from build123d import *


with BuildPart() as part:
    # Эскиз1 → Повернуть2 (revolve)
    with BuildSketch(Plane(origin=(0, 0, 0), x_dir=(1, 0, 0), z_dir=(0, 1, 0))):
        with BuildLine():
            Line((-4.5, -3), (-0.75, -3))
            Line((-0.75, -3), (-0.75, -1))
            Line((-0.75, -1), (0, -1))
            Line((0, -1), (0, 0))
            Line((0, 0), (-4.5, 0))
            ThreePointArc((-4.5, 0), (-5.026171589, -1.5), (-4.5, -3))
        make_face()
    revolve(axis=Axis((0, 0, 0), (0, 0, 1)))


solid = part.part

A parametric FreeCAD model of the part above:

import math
import FreeCAD as App
import Part
import Sketcher

V = App.Vector

doc = App.newDocument("Part")
params = doc.addObject("Spreadsheet::Sheet", "Params")
for row, (alias, value) in enumerate([
    ("sketch1_height", "2 mm"),
    ("sketch1_height2", "1 mm"),
    ("sketch1_width", "4.5 mm"),
    ("sketch1_width2", "3.75 mm"),
    ("revolution_angle", "360 deg"),
], start=1):
    params.set(f"A{row}", alias)
    params.set(f"B{row}", "=" + value)
    params.setAlias(f"B{row}", alias)

body = doc.addObject("PartDesign::Body", "Body")

sketch1 = doc.addObject("Sketcher::SketchObject", "Sketch")
body.addObject(sketch1)
sketch1.AttachmentSupport = (doc.XZ_Plane, [""])
sketch1.MapMode = "FlatFace"
sketch1.addGeometry([
    Part.LineSegment(V(-4.5, 3, 0), V(-0.8, 3, 0)),
    Part.LineSegment(V(-0.8, 3, 0), V(-0.8, 1, 0)),
    Part.LineSegment(V(-0.8, 1, 0), V(0, 1, 0)),
    Part.LineSegment(V(0, 1, 0), V(0, 0, 0)),
    Part.LineSegment(V(0, 0, 0), V(-4.5, 0, 0)),
    Part.ArcOfCircle(Part.Circle(V(-2.6, 1.5, 0), V(0, 0, 1), 2.4), math.radians(141), math.radians(219)),
], False)
sketch1.addConstraint([
    Sketcher.Constraint("Coincident", 0, 2, 1, 1),
    Sketcher.Constraint("Coincident", 1, 2, 2, 1),
    Sketcher.Constraint("Coincident", 2, 2, 3, 1),
    Sketcher.Constraint("Coincident", 3, 2, 4, 1),
    Sketcher.Constraint("Coincident", 4, 2, 5, 2),
    Sketcher.Constraint("Coincident", 5, 1, 0, 1),
    Sketcher.Constraint("Horizontal", 0),
    Sketcher.Constraint("Vertical", 1),
    Sketcher.Constraint("Horizontal", 2),
    Sketcher.Constraint("Vertical", 3),
    Sketcher.Constraint("Horizontal", 4),
    Sketcher.Constraint("Coincident", 3, 2, -1, 1),
    Sketcher.Constraint("Vertical", 4, 2, 5, 1),
    Sketcher.Constraint("DistanceY", 1, 2, 1, 1, 2.0),
    Sketcher.Constraint("DistanceY", 3, 2, 3, 1, 1.0),
    Sketcher.Constraint("DistanceX", 4, 2, 4, 1, 4.5),
    Sketcher.Constraint("DistanceX", 0, 1, 0, 2, 3.75),
    Sketcher.Constraint("Radius", 5, 2.401172),
])
sketch1.setExpression("Constraints[13]", "Params.sketch1_height")
sketch1.setExpression("Constraints[14]", "Params.sketch1_height2")
sketch1.setExpression("Constraints[15]", "Params.sketch1_width")
sketch1.setExpression("Constraints[16]", "Params.sketch1_width2")
revolution = doc.addObject("PartDesign::Revolution", "Revolution")
body.addObject(revolution)
revolution.Profile = sketch1
revolution.ReferenceAxis = (sketch1, ["V_Axis"])
revolution.setExpression("Angle", "Params.revolution_angle")

doc.recompute()
